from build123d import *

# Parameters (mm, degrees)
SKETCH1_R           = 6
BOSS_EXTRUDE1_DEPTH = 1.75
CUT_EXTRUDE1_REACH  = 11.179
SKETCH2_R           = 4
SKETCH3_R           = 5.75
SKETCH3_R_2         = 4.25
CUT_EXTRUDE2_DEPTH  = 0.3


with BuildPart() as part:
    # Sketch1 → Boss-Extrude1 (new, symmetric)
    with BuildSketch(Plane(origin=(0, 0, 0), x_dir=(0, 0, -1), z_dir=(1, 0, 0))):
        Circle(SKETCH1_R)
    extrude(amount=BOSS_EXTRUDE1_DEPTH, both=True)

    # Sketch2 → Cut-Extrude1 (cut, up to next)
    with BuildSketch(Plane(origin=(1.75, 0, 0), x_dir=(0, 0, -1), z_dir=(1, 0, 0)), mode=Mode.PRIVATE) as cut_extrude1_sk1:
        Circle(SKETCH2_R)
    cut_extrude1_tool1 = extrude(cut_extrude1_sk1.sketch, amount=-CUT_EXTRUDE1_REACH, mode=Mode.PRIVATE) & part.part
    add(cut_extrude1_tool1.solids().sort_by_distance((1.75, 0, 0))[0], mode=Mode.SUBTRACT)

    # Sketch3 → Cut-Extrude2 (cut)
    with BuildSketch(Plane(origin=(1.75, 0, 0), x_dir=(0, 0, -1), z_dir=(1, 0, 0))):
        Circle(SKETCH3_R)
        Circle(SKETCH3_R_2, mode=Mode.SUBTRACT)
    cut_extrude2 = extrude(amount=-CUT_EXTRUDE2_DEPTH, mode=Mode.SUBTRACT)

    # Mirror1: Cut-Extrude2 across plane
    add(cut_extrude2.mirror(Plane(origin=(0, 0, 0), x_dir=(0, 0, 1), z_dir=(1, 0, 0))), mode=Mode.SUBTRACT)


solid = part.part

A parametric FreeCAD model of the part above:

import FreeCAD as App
import Part
import Sketcher

V = App.Vector
Q = App.Units.Quantity

doc = App.newDocument("Part")
body = doc.addObject("PartDesign::Body", "Body")

# Sketch on YZ plane
sketch1 = body.newObject("Sketcher::SketchObject", "Sketch")
sketch1.AttachmentSupport = (doc.getObject("YZ_Plane"), [""])
sketch1.MapMode = "FlatFace"
sketch1.addGeometry(Part.Circle(V(0, 0, 0), V(0, 0, 1), 6), False)
sketch1.addConstraint([
    Sketcher.Constraint("Coincident", 0, 3, -1, 1),
    Sketcher.Constraint("Diameter", 0, Q("12 mm")),
])
pad1 = body.newObject("PartDesign::Pad", "Pad")
pad1.Profile = sketch1
pad1.Length = 3.5
pad1.Midplane = True

# Sketch on YZ plane
sketch2 = body.newObject("Sketcher::SketchObject", "Sketch001")
sketch2.AttachmentSupport = (doc.getObject("YZ_Plane"), [""])
sketch2.MapMode = "FlatFace"
sketch2.AttachmentOffset = App.Placement(V(0, 0, 1.75), App.Rotation())
sketch2.addGeometry(Part.Circle(V(0, 0, 0), V(0, 0, 1), 4), False)
sketch2.addConstraint([
    Sketcher.Constraint("Coincident", 0, 3, -1, 1),
    Sketcher.Constraint("Diameter", 0, Q("8 mm")),
])
pocket1 = body.newObject("PartDesign::Pocket", "Pocket")
pocket1.Profile = sketch2
pocket1.Type = "UpToFirst"

# Sketch on YZ plane
sketch3 = body.newObject("Sketcher::SketchObject", "Sketch002")
sketch3.AttachmentSupport = (doc.getObject("YZ_Plane"), [""])
sketch3.MapMode = "FlatFace"
sketch3.AttachmentOffset = App.Placement(V(0, 0, 1.75), App.Rotation())
sketch3.addGeometry([
    Part.Circle(V(0, 0, 0), V(0, 0, 1), 5.8),
    Part.Circle(V(0, 0, 0), V(0, 0, 1), 4.2),
], False)
sketch3.addConstraint([
    Sketcher.Constraint("Coincident", 0, 3, -1, 1),
    Sketcher.Constraint("Coincident", 1, 3, -1, 1),
    Sketcher.Constraint("Diameter", 0, Q("11.5 mm")),
    Sketcher.Constraint("Diameter", 1, Q("8.5 mm")),
])
pocket2 = body.newObject("PartDesign::Pocket", "Pocket001")
pocket2.Profile = sketch3
pocket2.Length = 0.3
doc.recompute()

mirrored = body.newObject("PartDesign::Mirrored", "Mirrored")
mirrored.Originals = [pocket2]
mirrored.MirrorPlane = (doc.getObject("YZ_Plane"), [""])
body.Tip = mirrored

doc.recompute()
